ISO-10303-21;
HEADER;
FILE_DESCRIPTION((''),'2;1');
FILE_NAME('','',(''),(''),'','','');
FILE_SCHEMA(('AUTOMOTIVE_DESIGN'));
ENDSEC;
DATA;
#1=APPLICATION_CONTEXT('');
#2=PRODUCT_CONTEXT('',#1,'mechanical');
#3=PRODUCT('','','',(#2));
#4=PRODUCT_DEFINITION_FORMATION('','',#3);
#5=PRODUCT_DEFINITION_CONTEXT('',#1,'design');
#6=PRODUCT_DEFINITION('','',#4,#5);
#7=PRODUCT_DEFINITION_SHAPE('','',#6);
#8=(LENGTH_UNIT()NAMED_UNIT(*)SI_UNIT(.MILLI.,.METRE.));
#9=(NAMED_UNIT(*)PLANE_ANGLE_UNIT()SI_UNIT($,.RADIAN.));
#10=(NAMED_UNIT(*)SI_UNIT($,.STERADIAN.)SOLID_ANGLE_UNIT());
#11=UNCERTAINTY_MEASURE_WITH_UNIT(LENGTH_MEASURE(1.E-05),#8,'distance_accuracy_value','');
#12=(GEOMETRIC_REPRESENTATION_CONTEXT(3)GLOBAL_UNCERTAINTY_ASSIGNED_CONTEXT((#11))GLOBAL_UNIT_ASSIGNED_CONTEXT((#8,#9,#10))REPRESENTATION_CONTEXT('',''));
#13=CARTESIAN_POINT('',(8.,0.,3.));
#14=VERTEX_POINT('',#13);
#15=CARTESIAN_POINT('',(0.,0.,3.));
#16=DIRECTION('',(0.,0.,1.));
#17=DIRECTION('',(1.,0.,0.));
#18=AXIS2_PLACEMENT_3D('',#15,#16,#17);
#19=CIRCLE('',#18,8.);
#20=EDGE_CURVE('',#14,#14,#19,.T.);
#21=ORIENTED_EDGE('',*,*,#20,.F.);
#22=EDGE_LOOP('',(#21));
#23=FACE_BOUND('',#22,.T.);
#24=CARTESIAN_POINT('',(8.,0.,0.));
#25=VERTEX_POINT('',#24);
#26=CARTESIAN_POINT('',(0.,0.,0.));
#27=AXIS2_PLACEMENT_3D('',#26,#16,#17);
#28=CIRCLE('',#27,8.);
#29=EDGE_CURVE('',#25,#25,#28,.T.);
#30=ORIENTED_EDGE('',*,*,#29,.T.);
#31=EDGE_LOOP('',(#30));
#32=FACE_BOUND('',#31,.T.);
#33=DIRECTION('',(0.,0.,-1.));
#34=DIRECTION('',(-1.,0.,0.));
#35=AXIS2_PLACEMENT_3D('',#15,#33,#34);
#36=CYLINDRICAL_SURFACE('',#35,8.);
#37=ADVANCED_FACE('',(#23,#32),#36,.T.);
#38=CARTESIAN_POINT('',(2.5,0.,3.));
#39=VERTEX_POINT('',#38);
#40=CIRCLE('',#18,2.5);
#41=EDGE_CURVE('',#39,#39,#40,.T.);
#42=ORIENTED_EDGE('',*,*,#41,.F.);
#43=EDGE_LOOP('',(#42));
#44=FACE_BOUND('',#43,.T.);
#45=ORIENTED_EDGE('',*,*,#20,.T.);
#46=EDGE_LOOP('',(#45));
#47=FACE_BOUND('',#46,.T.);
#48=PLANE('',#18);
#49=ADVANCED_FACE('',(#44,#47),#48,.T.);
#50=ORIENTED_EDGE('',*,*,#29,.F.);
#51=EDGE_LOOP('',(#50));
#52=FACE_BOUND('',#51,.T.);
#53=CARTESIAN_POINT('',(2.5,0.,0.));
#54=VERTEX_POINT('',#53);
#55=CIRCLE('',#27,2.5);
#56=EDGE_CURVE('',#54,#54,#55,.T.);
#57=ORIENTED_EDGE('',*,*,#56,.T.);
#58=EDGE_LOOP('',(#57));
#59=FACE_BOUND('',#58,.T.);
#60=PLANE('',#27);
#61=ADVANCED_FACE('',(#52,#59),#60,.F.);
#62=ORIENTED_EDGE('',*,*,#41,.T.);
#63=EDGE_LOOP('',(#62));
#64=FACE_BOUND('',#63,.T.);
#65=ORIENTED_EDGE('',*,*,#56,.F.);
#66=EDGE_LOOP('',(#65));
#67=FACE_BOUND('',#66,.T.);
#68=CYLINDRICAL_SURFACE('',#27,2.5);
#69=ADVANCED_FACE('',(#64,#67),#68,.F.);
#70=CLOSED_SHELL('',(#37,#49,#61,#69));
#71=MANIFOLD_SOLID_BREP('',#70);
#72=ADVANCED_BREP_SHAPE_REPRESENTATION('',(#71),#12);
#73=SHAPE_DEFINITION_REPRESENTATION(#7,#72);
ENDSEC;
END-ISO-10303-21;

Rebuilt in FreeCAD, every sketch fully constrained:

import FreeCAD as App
import Part
import Sketcher
Q = App.Units.Quantity

doc = App.newDocument("Part")
params = doc.addObject("Spreadsheet::Sheet", "Params")
for row, (alias, value) in enumerate([
    ("sketch1_diameter", "16 mm"),
    ("pad1_length", "3 mm"),
    ("sketch2_diameter", "5 mm"),
    ("pocket1_length", "3 mm"),
], start=1):
    params.set(f"A{row}", alias)
    params.set(f"B{row}", "=" + value)
    params.setAlias(f"B{row}", alias)

body = doc.addObject("PartDesign::Body", "Body")

sketch1 = body.newObject("Sketcher::SketchObject", "Sketch")
sketch1.AttachmentSupport = (doc.getObject("XY_Plane"), [""])
sketch1.MapMode = "FlatFace"
sketch1.addGeometry(Part.Circle(App.Vector(0, 0, 0), App.Vector(0, 0, 1), 8), False)
sketch1.addConstraint([
    Sketcher.Constraint("Coincident", 0, 3, -1, 1),
    Sketcher.Constraint("Diameter", 0, Q("16 mm")),
])
sketch1.setExpression("Constraints[1]", "Params.sketch1_diameter")
pad1 = body.newObject("PartDesign::Pad", "Pad")
pad1.Profile = sketch1
pad1.setExpression("Length", "Params.pad1_length")

sketch2 = body.newObject("Sketcher::SketchObject", "Sketch001")
sketch2.AttachmentSupport = (doc.getObject("XY_Plane"), [""])
sketch2.MapMode = "FlatFace"
sketch2.AttachmentOffset = App.Placement(App.Vector(0, 0, 3), App.Rotation())
sketch2.addGeometry(Part.Circle(App.Vector(0, 0, 0), App.Vector(0, 0, 1), 2.5), False)
sketch2.addConstraint([
    Sketcher.Constraint("Coincident", 0, 3, -1, 1),
    Sketcher.Constraint("Diameter", 0, Q("5 mm")),
])
sketch2.setExpression("Constraints[1]", "Params.sketch2_diameter")
pocket1 = body.newObject("PartDesign::Pocket", "Pocket")
pocket1.Profile = sketch2
pocket1.setExpression("Length", "Params.pocket1_length")

doc.recompute()
